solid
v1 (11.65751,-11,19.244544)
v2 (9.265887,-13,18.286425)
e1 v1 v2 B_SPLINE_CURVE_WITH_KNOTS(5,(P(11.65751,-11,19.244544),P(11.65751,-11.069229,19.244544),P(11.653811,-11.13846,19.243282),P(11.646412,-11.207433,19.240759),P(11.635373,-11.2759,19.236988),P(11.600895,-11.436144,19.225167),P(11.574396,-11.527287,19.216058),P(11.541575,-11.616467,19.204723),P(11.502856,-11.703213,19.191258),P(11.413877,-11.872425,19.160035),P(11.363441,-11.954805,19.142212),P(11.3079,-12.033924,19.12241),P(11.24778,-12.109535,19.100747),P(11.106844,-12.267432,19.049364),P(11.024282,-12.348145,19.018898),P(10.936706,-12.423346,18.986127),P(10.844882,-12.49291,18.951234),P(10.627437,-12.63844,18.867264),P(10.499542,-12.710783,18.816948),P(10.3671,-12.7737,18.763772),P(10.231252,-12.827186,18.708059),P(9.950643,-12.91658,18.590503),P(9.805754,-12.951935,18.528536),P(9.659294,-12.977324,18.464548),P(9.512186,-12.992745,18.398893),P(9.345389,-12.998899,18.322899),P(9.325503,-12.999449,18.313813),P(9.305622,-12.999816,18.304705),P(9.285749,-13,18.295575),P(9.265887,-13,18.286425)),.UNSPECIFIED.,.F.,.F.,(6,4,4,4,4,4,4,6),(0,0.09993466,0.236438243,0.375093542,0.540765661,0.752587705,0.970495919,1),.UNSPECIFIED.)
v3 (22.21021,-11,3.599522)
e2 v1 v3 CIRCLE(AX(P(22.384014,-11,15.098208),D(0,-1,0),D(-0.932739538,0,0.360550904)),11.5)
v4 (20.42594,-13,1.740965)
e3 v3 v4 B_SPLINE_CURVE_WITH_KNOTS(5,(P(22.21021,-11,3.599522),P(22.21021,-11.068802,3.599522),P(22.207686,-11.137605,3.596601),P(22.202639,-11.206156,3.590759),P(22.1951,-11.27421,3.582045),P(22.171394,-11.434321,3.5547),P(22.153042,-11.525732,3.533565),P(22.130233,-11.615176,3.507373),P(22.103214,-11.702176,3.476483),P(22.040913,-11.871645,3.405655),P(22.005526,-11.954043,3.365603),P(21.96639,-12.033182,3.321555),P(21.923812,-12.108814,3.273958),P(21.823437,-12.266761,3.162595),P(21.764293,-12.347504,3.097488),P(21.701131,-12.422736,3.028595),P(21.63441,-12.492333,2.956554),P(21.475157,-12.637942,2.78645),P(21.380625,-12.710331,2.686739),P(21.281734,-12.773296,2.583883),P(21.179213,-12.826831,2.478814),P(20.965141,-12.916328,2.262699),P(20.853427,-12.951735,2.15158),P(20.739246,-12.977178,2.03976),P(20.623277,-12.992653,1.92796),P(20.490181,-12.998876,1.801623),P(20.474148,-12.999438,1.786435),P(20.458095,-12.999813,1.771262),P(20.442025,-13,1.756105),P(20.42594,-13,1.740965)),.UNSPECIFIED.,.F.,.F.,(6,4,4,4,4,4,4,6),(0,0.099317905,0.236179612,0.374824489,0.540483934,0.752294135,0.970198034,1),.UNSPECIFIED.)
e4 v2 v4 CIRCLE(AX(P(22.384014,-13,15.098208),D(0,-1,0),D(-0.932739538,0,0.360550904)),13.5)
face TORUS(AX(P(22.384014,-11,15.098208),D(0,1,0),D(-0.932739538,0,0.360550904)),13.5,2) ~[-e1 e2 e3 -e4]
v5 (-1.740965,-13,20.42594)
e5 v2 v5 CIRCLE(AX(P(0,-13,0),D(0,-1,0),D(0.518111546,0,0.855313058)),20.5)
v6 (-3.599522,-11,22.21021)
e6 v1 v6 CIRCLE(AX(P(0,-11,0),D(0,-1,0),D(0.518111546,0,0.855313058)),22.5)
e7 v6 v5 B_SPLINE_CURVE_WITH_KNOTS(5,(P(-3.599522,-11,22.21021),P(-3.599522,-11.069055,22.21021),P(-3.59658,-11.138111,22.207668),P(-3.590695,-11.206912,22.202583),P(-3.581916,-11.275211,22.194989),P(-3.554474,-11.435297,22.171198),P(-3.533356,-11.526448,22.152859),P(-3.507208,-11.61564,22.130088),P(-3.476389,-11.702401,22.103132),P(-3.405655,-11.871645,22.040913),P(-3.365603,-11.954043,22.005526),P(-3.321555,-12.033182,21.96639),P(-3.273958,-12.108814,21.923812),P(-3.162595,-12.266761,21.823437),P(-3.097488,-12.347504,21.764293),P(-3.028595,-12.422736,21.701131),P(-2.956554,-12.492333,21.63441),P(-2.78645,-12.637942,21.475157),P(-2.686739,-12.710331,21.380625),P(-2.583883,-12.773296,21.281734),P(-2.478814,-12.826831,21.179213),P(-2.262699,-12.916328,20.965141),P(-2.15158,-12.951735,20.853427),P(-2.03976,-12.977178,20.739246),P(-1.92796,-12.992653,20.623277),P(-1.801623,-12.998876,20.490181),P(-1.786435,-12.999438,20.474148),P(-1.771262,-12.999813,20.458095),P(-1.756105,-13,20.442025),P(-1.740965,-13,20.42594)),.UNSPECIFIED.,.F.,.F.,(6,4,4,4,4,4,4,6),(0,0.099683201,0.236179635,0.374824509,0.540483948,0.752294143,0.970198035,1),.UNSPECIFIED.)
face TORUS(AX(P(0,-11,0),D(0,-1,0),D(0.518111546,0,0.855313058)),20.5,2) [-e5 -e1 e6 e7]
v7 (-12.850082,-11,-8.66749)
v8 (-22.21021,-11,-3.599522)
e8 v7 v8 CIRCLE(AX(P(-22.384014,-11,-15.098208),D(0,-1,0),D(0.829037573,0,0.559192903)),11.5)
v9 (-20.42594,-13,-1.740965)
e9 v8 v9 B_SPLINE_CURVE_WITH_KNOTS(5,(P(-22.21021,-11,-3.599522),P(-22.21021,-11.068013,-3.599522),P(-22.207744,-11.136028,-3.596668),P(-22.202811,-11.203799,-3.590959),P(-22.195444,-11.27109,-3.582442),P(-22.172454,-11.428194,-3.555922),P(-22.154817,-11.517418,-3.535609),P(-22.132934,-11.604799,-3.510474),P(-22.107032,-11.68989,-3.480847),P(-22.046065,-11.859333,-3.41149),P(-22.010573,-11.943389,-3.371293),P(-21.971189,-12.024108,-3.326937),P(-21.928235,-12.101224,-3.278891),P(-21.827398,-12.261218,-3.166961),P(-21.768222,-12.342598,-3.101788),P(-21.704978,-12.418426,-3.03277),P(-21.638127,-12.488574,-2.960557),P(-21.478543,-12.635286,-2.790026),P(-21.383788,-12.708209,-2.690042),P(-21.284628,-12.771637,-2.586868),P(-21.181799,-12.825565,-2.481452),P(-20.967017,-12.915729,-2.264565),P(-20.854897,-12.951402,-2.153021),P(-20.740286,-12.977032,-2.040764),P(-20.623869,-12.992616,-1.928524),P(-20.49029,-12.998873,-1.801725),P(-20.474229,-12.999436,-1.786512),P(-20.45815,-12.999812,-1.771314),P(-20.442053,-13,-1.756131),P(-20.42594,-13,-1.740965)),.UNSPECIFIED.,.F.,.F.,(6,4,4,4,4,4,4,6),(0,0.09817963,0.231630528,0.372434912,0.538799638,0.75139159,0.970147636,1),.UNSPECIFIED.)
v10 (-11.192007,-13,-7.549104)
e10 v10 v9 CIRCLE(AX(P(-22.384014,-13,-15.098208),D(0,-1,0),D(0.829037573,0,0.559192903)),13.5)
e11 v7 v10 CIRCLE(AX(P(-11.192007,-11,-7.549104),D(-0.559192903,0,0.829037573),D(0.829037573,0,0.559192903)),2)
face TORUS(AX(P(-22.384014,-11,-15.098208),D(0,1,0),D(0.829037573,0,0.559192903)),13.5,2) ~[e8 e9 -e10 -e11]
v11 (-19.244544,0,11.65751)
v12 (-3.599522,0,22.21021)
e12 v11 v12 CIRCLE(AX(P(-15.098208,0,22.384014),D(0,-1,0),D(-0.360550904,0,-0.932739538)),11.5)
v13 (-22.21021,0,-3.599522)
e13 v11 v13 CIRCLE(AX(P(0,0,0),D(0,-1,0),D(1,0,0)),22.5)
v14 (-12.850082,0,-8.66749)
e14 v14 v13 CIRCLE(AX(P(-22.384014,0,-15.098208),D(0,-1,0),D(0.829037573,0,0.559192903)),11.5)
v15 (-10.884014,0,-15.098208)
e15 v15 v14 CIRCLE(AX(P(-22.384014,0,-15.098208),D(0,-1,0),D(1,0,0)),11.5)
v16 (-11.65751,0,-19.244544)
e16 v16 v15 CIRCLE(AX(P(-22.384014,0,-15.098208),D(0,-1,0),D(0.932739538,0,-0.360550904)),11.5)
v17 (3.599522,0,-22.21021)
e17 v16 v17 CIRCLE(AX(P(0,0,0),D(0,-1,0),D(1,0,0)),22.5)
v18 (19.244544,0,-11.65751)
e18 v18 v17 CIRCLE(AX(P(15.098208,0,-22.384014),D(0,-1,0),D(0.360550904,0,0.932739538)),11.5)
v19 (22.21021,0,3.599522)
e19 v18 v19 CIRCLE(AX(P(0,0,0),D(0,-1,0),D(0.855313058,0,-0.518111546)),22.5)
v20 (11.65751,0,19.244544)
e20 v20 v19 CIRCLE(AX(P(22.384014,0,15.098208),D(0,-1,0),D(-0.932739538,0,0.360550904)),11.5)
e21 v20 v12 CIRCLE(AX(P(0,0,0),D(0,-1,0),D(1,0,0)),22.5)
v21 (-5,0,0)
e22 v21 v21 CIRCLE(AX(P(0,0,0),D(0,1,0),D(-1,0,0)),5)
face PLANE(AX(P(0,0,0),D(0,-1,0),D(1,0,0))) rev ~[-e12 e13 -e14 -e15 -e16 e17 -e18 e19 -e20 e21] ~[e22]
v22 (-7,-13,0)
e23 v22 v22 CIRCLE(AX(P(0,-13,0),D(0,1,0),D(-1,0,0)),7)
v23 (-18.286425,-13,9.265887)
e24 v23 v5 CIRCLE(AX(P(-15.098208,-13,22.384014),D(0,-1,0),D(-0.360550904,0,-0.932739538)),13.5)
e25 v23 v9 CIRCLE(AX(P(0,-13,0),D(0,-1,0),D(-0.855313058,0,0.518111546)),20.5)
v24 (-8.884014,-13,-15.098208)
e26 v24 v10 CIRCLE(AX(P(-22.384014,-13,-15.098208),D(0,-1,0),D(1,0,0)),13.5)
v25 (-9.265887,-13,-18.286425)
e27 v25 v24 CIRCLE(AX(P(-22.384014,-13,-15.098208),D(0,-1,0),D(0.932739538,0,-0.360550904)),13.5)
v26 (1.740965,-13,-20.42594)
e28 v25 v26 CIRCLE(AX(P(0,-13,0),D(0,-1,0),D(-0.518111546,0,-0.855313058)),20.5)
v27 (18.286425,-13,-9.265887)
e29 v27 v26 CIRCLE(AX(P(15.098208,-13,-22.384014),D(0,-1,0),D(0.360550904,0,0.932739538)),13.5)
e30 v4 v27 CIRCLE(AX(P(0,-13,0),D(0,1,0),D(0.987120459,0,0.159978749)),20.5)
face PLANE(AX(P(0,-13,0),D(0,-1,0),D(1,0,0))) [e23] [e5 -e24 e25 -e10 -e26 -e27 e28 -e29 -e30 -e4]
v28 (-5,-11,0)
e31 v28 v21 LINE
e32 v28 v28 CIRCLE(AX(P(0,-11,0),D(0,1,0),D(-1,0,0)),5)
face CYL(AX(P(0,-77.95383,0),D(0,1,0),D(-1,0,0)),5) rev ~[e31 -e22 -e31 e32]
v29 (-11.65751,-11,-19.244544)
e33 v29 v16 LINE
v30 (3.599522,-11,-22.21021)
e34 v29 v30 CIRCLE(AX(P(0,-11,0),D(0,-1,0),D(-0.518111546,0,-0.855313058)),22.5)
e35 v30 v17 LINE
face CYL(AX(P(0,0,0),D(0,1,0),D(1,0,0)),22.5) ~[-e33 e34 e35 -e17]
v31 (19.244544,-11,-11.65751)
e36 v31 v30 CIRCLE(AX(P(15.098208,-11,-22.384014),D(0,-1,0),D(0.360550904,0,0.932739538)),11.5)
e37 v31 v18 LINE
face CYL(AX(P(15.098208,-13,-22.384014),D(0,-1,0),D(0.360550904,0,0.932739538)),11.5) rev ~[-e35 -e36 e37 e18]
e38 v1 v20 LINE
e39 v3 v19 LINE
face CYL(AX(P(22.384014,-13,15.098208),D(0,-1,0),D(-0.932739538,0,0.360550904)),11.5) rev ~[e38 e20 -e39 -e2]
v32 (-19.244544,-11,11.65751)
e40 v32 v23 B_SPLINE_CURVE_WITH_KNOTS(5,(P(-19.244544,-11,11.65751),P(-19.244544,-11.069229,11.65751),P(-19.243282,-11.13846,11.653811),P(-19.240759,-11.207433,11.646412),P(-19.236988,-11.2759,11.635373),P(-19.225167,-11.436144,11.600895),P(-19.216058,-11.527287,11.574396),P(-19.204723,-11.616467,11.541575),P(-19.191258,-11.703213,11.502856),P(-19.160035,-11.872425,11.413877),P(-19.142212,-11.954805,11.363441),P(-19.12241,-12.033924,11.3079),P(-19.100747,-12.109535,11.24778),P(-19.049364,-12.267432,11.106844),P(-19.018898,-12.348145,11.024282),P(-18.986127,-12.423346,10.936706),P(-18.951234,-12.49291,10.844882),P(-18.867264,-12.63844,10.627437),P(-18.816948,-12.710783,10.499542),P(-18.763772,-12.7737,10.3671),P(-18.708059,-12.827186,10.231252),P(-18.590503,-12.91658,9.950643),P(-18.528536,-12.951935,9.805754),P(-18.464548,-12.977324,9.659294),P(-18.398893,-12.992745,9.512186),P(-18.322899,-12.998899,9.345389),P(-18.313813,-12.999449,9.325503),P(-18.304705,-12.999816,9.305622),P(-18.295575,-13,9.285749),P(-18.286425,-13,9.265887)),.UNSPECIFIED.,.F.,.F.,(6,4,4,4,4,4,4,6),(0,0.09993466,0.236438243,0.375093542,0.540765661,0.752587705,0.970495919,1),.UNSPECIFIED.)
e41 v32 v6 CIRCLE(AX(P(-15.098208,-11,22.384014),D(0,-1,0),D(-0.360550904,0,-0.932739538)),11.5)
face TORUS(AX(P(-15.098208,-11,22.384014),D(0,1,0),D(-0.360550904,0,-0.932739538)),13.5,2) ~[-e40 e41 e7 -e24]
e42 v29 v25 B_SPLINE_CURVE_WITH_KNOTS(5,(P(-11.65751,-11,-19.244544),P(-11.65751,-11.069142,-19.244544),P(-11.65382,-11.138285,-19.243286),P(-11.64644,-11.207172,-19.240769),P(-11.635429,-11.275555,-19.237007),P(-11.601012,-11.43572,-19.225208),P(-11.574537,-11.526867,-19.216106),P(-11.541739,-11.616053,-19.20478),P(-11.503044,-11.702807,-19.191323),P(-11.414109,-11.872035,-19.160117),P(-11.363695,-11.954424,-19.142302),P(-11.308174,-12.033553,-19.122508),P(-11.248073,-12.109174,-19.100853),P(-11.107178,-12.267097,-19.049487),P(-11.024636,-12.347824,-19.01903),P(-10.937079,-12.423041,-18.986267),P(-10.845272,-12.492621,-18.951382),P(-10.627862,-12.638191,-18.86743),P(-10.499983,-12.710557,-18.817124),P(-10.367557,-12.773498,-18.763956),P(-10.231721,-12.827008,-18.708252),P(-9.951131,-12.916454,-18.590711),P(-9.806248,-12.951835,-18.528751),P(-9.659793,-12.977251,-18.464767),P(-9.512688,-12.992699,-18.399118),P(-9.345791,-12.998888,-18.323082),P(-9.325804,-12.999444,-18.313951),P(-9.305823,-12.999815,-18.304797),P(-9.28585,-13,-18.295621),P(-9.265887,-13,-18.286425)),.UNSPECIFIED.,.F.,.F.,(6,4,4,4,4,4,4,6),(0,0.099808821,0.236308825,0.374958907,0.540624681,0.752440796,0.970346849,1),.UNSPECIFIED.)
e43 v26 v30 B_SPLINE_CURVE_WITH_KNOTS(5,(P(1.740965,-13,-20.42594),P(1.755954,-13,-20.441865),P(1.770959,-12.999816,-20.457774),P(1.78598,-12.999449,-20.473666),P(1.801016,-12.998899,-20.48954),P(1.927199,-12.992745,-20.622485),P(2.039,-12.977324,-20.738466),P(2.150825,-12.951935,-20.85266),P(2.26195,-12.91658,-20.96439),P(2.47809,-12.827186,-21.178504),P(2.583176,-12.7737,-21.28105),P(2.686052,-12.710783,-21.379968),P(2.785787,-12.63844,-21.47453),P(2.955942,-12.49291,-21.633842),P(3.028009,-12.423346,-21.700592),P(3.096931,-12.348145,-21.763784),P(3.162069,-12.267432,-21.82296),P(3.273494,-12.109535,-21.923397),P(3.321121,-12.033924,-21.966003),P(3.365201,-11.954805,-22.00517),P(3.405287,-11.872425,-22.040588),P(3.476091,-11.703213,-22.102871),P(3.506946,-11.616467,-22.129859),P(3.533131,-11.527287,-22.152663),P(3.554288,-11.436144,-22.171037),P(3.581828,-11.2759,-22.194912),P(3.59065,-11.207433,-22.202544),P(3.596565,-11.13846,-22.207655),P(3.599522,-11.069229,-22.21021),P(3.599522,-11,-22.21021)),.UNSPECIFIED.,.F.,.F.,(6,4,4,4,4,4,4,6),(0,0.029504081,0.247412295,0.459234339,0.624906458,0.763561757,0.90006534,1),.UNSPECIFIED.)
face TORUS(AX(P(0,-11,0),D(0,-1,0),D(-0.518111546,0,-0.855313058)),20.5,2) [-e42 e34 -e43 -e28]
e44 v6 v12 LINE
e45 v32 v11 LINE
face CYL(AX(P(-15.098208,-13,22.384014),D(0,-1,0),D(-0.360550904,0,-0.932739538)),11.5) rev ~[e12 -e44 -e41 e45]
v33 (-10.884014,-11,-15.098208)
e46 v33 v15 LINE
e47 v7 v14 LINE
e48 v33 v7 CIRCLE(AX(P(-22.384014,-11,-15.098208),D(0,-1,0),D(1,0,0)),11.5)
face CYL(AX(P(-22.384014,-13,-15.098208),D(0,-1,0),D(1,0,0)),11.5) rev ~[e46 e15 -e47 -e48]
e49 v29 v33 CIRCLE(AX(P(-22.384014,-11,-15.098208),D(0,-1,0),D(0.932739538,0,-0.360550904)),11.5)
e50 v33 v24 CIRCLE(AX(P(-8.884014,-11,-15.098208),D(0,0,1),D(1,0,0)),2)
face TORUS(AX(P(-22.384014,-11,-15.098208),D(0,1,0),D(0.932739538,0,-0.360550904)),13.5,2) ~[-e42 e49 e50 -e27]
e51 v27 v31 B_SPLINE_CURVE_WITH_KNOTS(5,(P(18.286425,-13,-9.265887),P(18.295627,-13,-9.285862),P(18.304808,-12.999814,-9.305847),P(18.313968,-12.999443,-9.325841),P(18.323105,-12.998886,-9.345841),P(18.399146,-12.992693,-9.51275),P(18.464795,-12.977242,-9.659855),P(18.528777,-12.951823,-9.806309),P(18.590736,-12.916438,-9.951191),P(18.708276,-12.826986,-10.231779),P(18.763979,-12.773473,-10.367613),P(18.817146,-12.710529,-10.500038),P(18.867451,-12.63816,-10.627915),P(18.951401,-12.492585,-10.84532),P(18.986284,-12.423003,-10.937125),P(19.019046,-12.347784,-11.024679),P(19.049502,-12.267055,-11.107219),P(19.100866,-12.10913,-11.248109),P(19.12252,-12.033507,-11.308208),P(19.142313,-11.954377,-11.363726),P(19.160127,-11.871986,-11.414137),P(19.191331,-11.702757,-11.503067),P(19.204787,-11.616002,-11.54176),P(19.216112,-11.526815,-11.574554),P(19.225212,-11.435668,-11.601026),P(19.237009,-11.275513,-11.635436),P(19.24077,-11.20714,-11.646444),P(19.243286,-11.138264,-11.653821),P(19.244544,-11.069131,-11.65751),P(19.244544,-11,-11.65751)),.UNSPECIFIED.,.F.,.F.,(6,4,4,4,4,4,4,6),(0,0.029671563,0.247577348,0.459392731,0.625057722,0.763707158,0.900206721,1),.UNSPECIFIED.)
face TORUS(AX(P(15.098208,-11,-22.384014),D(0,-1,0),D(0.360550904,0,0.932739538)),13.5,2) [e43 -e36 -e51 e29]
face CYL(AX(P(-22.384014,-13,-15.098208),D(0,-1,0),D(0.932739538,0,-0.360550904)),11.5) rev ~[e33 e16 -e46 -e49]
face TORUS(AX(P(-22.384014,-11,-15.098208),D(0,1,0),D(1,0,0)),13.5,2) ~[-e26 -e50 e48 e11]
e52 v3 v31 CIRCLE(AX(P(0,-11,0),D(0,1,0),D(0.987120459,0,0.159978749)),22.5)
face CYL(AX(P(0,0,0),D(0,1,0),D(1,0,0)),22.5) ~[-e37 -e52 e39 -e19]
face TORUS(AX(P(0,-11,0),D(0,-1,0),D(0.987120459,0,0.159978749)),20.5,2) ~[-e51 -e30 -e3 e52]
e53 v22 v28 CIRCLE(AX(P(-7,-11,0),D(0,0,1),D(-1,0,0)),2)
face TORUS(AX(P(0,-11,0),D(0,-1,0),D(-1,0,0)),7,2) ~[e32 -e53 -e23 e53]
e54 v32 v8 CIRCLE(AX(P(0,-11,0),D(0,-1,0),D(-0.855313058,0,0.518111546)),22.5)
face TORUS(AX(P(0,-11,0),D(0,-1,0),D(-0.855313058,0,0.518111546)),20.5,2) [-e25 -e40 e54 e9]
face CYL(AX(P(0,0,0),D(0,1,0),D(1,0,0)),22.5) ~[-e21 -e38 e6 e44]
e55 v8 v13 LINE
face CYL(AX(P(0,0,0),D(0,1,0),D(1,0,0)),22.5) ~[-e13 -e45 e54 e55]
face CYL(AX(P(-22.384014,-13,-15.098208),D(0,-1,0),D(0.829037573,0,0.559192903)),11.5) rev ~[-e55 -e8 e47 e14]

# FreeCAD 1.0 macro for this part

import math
import FreeCAD as App
import Part
import Sketcher


def edges_at(feature, points):
    """Names of the edges that pass closest to the given points."""
    edges = feature.Shape.Edges
    near = lambda p: min(range(len(edges)), key=lambda i: edges[i].distToShape(Part.Vertex(*p))[0])
    return sorted({f"Edge{near(p) + 1}" for p in points})

doc = App.newDocument("Part")
params = doc.addObject("Spreadsheet::Sheet", "Params")
for row, (alias, value) in enumerate([
    ("sketch1_diameter", "45 mm"),
    ("pad1_length", "13 mm"),
    ("sketch2_diameter", "10 mm"),
    ("hole_diameter", "10 mm"),
    ("sketch3_radius", "11.5 mm"),
    ("sketch3_radius2", "22.5 mm"),
    ("pocket1_length", "25 mm"),
    ("fillet_radius", "2 mm"),
], start=1):
    params.set(f"A{row}", alias)
    params.set(f"B{row}", "=" + value)
    params.setAlias(f"B{row}", alias)

body = doc.addObject("PartDesign::Body", "Body")

# Sketch on XZ plane
sketch1 = body.newObject("Sketcher::SketchObject", "Sketch")
sketch1.AttachmentSupport = (doc.getObject("XZ_Plane"), [""])
sketch1.MapMode = "FlatFace"
sketch1.addGeometry(Part.Circle(App.Vector(0, 0, 0), App.Vector(0, 0, 1), 22), False)
sketch1.addConstraint([
    Sketcher.Constraint("Coincident", 0, 3, -1, 1),
    Sketcher.Constraint("Diameter", 0, 45.0),
])
sketch1.setExpression("Constraints[1]", "Params.sketch1_diameter")
pad1 = body.newObject("PartDesign::Pad", "Pad")
pad1.Profile = sketch1
pad1.setExpression("Length", "Params.pad1_length")

# Sketch on XZ plane
sketch2 = body.newObject("Sketcher::SketchObject", "Sketch001")
sketch2.AttachmentSupport = (doc.getObject("XZ_Plane"), [""])
sketch2.MapMode = "FlatFace"
sketch2.AttachmentOffset = App.Placement(App.Vector(0, 0, 13), App.Rotation())
sketch2.addGeometry(Part.Circle(App.Vector(0, 0, 0), App.Vector(0, 0, 1), 5), False)
sketch2.addConstraint([
    Sketcher.Constraint("Coincident", 0, 3, -1, 1),
    Sketcher.Constraint("Diameter", 0, 10.0),
])
sketch2.setExpression("Constraints[1]", "Params.sketch2_diameter")
doc.recompute()
hole = body.newObject("PartDesign::Hole", "Hole")
hole.Profile = sketch2
hole.ThreadType = "None"
hole.setExpression("Diameter", "Params.hole_diameter")
hole.DepthType = "ThroughAll"

# Sketch on XZ plane
sketch3 = body.newObject("Sketcher::SketchObject", "Sketch002")
sketch3.AttachmentSupport = (doc.getObject("XZ_Plane"), [""])
sketch3.MapMode = "FlatFace"
sketch3.AttachmentOffset = App.Placement(App.Vector(0, 0, 13), App.Rotation())
sketch3.addGeometry([
    Part.ArcOfCircle(Part.Circle(App.Vector(-22.4, -15.1, 0), App.Vector(0, 0, 1), 11.5), math.radians(34), math.radians(89)),  # 0
    Part.ArcOfCircle(Part.Circle(App.Vector(0, 0, 0), App.Vector(0, 0, 1), 22.5), math.radians(-171), math.radians(-146)),  # 1
    Part.ArcOfCircle(Part.Circle(App.Vector(0, 0, 0), App.Vector(0, 0, 1), 22.5), math.radians(-146), math.radians(-121)),  # 2
    Part.ArcOfCircle(Part.Circle(App.Vector(-22.4, -15.1, 0), App.Vector(0, 0, 1), 11.5), math.radians(-21), math.radians(0)),  # 3
    Part.ArcOfCircle(Part.Circle(App.Vector(-22.4, -15.1, 0), App.Vector(0, 0, 1), 11.5), math.radians(0), math.radians(34)),  # 4
    Part.ArcOfCircle(Part.Circle(App.Vector(15.1, -22.4, 0), App.Vector(0, 0, 1), 11.5), math.radians(69), math.radians(179)),  # 5
    Part.ArcOfCircle(Part.Circle(App.Vector(0, 0, 0), App.Vector(0, 0, 1), 22.5), math.radians(-81), math.radians(-31)),  # 6
    Part.ArcOfCircle(Part.Circle(App.Vector(0, 0, 0), App.Vector(0, 0, 1), 22.5), math.radians(9), math.radians(59)),  # 7
    Part.ArcOfCircle(Part.Circle(App.Vector(22.4, 15.1, 0), App.Vector(0, 0, 1), 11.5), math.radians(159), math.radians(269)),  # 8
    Part.ArcOfCircle(Part.Circle(App.Vector(0, 0, 0), App.Vector(0, 0, 1), 22.5), math.radians(99), math.radians(149)),  # 9
    Part.ArcOfCircle(Part.Circle(App.Vector(-15.1, 22.4, 0), App.Vector(0, 0, 1), 11.5), math.radians(-111), math.radians(-1)),  # 10
], False)
sketch3.addConstraint([
    Sketcher.Constraint("Coincident", 0, 2, 1, 1),
    Sketcher.Constraint("Tangent", 1, 2, 2, 1),
    Sketcher.Constraint("Coincident", 2, 2, 3, 1),
    Sketcher.Constraint("Tangent", 3, 2, 4, 1),
    Sketcher.Constraint("Tangent", 4, 2, 0, 1),
    Sketcher.Constraint("Coincident", 5, 1, 6, 2),
    Sketcher.Constraint("Coincident", 6, 1, 5, 2),
    Sketcher.Constraint("Coincident", 7, 1, 8, 2),
    Sketcher.Constraint("Coincident", 8, 1, 7, 2),
    Sketcher.Constraint("Coincident", 9, 1, 10, 2),
    Sketcher.Constraint("Coincident", 10, 1, 9, 2),
    Sketcher.Constraint("Coincident", 1, 3, -1, 1),
    Sketcher.Constraint("Coincident", 6, 3, -1, 1),
    Sketcher.Constraint("Coincident", 7, 3, -1, 1),
    Sketcher.Constraint("Coincident", 9, 3, -1, 1),
    Sketcher.Constraint("Coincident", 3, 3, 0, 3),
    Sketcher.Constraint("Equal", 1, 2),
    Sketcher.Constraint("Equal", 4, 5),
    Sketcher.Constraint("Equal", 2, 6),
    Sketcher.Constraint("Equal", 6, 7),
    Sketcher.Constraint("Equal", 5, 8),
    Sketcher.Constraint("Equal", 7, 9),
    Sketcher.Constraint("Equal", 8, 10),
    Sketcher.Constraint("Symmetric", 0, 3, 8, 3, -1, 1),
    Sketcher.Constraint("Symmetric", 5, 3, 10, 3, -1, 1),
    Sketcher.Constraint("Horizontal", 4, 3, 3, 2),
    Sketcher.Constraint("Radius", 0, 11.5),
    Sketcher.Constraint("Radius", 1, 22.5),
    Sketcher.Constraint("DistanceY", 6, 1, 3, 2, 7.112002),
    Sketcher.Constraint("DistanceY", 4, 2, 10, 1, 20.325),
    Sketcher.Constraint("DistanceX", 0, 2, 2, 2, 10.552701),
    Sketcher.Constraint("DistanceY", 6, 1, 5, 1, 10.552701),
    Sketcher.Constraint("DistanceY", 0, 3, -1, 1, 15.098208),
    Sketcher.Constraint("DistanceY", 1, 2, -1, 1, 12.58184),
])
sketch3.setExpression("Constraints[26]", "Params.sketch3_radius")
sketch3.setExpression("Constraints[27]", "Params.sketch3_radius2")
pocket1 = body.newObject("PartDesign::Pocket", "Pocket")
pocket1.Profile = sketch3
pocket1.setExpression("Length", "Params.pocket1_length")
doc.recompute()

fillet = body.newObject("PartDesign::Fillet", "Fillet")
fillet.Base = (pocket1, edges_at(pocket1, [
    (8.667, -13, -12.85),
    (22.087, -13, -4.293),
    (12.85, -13, 8.667),
    (4.293, -13, 22.087),
    (-8.667, -13, 12.85),
    (-22.087, -13, 4.293),
    (-11.387, -13, -11.736),
    (-4.293, -13, -22.087),
    (5, -13, 0),
]))
fillet.setExpression("Radius", "Params.fillet_radius")

doc.recompute()
